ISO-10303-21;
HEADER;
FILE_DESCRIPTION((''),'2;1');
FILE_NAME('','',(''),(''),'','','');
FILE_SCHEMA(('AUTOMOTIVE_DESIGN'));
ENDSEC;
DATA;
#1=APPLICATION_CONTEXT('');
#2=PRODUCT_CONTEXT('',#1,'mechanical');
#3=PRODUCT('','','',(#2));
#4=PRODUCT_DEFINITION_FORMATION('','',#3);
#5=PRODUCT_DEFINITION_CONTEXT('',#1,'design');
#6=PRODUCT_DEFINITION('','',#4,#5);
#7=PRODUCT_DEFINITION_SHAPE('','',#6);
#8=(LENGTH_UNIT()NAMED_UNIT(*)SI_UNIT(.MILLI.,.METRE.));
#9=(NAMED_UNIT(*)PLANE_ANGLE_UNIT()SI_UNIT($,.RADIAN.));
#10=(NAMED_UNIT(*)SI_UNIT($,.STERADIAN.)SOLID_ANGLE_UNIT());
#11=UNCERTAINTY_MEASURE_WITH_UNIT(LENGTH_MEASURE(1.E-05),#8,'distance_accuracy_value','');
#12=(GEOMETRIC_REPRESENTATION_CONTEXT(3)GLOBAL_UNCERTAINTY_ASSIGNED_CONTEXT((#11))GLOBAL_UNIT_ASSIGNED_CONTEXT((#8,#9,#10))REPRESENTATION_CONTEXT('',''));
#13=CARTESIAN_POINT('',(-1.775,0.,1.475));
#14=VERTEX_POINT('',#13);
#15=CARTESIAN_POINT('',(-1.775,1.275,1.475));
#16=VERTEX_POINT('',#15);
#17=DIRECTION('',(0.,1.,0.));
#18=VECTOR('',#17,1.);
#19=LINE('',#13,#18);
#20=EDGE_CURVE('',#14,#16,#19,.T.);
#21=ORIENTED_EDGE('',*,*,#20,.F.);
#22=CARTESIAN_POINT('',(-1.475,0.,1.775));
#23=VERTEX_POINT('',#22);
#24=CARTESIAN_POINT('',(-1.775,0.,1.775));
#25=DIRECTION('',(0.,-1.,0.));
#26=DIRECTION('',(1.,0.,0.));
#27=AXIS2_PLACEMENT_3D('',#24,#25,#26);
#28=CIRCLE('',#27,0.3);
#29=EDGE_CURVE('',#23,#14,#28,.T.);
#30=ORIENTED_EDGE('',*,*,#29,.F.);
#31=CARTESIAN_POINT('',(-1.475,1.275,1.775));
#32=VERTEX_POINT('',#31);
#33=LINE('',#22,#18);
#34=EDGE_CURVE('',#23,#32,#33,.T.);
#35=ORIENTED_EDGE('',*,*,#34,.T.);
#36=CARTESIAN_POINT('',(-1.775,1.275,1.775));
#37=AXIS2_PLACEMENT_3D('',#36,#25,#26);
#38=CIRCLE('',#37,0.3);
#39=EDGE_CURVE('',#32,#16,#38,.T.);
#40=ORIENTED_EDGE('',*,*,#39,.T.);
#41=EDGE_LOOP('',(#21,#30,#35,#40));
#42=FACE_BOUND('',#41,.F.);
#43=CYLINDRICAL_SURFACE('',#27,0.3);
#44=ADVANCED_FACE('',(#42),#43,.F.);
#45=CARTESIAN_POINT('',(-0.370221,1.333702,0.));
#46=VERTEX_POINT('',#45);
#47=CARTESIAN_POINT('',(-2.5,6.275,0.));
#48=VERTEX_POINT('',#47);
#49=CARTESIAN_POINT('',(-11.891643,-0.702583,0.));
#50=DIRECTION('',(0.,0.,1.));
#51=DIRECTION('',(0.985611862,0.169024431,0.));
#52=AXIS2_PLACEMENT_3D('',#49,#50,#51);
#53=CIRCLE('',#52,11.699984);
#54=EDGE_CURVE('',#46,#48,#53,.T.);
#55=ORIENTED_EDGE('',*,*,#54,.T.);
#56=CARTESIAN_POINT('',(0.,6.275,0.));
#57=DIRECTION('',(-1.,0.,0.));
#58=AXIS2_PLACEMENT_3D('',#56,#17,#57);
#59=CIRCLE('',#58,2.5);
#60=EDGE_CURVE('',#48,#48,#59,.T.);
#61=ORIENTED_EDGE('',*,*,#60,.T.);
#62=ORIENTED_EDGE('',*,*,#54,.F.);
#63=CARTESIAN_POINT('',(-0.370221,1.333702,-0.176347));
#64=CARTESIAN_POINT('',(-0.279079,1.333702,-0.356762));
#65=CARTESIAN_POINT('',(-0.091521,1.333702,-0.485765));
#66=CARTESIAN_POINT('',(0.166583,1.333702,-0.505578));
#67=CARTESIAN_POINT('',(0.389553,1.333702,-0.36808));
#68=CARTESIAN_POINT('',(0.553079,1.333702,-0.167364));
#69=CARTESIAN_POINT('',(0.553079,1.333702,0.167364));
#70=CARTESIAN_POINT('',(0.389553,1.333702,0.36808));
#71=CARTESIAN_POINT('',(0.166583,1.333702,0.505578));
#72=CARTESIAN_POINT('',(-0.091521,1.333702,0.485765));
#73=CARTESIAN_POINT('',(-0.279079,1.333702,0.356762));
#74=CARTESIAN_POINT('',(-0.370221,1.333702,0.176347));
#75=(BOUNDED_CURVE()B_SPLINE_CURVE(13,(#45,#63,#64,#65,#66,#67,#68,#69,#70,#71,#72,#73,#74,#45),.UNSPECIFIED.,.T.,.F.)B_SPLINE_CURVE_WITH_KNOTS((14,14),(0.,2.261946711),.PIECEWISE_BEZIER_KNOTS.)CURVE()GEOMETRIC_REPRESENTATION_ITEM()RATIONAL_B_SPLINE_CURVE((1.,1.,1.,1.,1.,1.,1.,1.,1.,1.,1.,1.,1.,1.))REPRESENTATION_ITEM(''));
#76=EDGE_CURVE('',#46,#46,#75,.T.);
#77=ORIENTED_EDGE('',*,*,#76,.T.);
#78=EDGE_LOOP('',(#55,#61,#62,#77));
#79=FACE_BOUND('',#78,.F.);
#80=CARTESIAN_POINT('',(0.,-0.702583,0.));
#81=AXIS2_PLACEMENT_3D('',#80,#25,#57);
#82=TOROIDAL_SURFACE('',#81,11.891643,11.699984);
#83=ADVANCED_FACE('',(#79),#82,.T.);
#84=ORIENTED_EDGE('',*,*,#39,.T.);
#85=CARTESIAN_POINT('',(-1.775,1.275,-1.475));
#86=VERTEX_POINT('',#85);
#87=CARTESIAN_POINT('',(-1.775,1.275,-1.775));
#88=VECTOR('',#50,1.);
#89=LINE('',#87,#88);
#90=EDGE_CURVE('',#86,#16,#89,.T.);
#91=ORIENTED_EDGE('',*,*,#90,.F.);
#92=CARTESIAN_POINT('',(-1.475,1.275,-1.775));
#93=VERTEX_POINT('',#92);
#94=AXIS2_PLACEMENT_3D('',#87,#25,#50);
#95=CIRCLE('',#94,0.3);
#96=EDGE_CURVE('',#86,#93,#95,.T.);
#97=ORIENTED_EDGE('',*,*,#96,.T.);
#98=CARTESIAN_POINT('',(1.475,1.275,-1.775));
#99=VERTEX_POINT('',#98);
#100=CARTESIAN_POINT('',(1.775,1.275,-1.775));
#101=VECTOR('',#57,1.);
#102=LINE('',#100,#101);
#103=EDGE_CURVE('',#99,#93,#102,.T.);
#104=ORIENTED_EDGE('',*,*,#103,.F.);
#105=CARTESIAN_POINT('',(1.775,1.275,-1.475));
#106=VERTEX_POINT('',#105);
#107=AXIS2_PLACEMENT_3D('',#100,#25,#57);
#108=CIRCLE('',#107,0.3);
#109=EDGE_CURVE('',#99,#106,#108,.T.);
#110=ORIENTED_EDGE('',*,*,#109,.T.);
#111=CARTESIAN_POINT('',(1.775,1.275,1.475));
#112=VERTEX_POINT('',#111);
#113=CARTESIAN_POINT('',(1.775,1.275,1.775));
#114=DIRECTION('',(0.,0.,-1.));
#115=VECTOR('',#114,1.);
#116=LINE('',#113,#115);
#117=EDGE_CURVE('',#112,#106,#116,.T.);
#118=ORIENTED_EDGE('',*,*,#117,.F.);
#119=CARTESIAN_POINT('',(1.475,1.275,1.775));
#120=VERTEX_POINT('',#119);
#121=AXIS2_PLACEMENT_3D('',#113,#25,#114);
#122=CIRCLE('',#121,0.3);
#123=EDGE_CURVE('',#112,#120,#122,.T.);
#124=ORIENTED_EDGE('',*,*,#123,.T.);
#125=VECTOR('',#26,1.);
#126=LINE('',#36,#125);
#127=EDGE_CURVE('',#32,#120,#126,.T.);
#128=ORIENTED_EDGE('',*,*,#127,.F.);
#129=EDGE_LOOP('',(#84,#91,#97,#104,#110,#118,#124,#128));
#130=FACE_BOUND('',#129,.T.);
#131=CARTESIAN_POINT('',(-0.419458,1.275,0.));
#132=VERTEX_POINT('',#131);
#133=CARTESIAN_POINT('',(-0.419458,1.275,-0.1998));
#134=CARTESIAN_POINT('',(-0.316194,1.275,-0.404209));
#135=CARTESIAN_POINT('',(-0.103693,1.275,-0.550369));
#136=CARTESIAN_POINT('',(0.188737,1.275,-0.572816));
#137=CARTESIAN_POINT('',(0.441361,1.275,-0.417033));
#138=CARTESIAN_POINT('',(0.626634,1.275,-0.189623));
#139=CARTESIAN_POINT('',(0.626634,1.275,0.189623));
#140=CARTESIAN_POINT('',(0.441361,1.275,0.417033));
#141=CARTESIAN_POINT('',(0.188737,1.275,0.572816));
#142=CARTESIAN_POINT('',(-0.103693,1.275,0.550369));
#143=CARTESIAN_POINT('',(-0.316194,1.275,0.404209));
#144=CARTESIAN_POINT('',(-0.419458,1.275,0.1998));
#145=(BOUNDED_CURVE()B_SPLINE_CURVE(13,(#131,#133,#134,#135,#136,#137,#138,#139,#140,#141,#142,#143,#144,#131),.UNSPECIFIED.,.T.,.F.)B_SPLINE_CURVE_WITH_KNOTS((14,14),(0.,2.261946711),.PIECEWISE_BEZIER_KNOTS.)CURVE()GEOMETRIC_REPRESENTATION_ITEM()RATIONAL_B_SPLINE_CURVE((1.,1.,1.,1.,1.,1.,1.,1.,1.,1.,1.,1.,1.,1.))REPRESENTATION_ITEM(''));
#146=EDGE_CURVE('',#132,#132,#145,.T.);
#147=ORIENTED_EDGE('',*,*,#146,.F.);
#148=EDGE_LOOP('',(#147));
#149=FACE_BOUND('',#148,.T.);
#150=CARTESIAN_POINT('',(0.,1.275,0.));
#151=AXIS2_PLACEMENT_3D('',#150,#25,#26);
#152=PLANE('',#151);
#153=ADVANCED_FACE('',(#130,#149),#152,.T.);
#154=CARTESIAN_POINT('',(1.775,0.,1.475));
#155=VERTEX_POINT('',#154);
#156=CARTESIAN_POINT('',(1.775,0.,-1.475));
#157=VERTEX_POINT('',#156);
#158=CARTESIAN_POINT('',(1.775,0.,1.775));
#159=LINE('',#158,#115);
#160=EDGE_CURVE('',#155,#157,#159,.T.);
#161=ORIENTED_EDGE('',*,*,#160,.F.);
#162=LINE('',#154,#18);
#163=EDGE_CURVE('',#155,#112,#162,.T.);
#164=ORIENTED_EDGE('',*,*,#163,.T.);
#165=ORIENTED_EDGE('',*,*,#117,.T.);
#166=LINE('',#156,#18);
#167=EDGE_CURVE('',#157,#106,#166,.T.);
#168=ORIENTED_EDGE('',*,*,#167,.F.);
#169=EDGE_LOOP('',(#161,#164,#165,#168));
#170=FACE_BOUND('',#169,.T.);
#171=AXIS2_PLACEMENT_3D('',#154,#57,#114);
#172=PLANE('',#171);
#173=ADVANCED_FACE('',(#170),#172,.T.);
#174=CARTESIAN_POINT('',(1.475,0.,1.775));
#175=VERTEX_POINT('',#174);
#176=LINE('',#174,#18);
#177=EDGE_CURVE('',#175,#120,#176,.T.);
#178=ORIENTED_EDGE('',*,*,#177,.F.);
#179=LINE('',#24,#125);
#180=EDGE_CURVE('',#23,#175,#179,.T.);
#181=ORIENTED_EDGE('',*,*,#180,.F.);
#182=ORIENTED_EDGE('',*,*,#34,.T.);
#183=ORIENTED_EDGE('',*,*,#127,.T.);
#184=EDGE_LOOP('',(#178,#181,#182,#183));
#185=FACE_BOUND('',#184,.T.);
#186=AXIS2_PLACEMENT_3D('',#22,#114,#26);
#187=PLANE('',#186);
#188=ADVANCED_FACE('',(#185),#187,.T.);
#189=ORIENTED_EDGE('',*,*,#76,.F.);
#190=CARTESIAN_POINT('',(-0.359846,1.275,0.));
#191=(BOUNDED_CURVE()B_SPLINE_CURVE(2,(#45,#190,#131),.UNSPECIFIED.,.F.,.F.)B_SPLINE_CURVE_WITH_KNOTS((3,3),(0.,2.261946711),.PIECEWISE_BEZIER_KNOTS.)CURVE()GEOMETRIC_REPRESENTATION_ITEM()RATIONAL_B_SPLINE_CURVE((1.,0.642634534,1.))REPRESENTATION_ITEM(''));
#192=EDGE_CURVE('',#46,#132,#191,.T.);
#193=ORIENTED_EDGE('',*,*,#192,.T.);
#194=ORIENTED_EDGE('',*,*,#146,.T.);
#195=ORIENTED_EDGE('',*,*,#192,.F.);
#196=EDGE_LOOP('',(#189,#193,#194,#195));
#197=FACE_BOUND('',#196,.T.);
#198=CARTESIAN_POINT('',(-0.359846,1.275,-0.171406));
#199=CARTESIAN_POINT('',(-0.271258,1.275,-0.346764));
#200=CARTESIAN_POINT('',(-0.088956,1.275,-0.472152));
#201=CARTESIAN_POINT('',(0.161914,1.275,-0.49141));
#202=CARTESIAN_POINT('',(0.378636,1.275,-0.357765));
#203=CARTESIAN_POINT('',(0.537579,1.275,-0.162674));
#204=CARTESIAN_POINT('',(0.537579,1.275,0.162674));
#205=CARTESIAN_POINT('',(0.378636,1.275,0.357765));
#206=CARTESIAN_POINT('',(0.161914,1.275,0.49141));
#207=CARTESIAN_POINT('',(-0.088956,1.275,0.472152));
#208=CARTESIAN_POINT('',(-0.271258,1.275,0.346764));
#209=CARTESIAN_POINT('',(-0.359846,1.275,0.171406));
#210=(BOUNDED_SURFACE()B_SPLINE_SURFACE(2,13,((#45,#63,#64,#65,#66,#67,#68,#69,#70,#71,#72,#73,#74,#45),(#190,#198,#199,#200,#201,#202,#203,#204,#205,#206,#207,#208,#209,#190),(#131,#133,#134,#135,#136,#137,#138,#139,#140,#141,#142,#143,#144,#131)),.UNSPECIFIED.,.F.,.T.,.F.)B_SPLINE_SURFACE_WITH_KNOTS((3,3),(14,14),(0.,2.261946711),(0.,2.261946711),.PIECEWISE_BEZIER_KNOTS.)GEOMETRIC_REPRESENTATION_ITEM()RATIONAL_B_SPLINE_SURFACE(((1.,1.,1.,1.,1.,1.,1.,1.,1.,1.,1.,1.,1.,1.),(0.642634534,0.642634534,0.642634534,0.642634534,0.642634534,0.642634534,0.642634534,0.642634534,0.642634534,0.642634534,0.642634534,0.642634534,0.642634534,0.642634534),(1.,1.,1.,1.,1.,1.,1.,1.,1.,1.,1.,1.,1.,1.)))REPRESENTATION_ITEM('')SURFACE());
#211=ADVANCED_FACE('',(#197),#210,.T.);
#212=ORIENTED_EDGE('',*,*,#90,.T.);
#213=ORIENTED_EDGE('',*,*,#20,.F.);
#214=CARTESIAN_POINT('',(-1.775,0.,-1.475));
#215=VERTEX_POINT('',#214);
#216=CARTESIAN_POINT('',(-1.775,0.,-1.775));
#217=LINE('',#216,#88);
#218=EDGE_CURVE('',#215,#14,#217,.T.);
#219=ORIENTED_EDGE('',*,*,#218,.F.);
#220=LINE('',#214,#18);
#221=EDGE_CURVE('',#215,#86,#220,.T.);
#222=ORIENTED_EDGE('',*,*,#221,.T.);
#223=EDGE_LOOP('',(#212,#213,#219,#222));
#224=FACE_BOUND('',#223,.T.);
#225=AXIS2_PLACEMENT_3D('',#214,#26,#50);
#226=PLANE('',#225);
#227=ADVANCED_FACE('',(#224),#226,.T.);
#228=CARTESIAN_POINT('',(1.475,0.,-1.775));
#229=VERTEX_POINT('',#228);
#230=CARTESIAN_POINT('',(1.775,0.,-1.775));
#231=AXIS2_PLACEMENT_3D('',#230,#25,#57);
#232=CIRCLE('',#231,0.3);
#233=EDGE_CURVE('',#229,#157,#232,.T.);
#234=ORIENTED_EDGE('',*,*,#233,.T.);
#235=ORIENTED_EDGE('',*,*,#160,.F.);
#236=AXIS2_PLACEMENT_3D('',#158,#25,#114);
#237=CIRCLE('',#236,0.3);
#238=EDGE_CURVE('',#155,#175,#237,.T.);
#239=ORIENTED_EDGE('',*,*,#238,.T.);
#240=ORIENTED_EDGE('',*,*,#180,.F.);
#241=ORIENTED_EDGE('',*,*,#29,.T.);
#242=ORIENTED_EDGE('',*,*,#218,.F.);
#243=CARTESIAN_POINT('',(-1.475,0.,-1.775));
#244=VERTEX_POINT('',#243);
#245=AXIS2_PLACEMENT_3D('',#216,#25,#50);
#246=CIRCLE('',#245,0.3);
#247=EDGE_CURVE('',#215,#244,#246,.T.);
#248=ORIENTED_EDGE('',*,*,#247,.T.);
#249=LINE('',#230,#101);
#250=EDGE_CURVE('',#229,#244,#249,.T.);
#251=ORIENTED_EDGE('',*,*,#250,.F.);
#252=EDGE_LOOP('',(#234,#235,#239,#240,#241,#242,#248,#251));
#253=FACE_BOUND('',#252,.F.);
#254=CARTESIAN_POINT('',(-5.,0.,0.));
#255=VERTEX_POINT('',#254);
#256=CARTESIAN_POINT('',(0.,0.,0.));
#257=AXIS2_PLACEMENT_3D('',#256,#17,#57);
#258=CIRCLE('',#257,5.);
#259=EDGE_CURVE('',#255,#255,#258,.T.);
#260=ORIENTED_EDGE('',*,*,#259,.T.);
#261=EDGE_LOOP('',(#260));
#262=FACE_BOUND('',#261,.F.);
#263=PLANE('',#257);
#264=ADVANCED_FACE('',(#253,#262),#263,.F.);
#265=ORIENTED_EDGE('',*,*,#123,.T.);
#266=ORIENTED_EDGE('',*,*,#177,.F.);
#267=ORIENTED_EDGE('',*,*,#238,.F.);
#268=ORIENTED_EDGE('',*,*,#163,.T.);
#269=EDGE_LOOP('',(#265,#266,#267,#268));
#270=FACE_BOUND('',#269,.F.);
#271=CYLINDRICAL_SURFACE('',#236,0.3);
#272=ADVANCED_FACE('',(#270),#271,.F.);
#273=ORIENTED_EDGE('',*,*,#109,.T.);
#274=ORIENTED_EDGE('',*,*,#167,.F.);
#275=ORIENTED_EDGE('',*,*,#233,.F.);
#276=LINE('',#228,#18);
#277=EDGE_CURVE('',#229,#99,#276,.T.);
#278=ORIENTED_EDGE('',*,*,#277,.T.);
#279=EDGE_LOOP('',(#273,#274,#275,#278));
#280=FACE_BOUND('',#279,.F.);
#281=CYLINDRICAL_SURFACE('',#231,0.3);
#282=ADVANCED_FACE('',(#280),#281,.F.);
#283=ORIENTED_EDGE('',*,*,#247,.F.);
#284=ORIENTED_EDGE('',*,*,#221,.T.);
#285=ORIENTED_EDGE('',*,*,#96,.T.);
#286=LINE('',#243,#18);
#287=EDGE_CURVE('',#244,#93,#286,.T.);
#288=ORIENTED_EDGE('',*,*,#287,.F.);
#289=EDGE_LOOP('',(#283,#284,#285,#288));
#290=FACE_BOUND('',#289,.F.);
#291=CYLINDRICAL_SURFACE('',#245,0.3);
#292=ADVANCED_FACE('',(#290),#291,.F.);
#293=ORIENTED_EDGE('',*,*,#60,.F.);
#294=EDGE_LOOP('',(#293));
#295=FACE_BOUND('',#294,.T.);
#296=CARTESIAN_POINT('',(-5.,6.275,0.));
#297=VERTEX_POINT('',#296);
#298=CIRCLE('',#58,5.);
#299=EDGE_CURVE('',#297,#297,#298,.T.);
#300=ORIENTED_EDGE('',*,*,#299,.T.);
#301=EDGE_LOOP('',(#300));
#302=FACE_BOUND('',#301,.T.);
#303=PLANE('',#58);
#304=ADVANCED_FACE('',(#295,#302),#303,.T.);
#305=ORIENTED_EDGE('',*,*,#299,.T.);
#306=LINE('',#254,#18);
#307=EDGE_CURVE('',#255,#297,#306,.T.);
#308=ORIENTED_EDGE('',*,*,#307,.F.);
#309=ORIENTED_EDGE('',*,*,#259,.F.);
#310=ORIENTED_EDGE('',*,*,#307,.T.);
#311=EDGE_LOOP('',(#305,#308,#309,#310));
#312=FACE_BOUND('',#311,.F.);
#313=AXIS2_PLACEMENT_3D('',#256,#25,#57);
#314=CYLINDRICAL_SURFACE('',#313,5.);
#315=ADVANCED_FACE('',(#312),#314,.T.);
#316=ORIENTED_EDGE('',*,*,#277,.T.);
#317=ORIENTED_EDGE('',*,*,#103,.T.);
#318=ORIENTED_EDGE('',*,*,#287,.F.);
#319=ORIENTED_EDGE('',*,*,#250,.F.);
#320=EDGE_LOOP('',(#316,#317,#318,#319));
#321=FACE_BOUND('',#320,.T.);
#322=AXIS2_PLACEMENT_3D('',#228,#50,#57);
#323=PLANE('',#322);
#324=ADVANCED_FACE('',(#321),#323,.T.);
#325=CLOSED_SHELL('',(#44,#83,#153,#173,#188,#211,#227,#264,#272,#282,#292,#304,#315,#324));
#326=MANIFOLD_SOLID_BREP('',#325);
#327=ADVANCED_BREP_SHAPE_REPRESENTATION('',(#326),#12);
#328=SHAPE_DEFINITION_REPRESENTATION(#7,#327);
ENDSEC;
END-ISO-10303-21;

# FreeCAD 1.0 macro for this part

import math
import FreeCAD as App
import Part
import Sketcher
from FreeCAD import Vector
Q = App.Units.Quantity


def edges_at(feature, points):
    """Names of the edges that pass closest to the given points."""
    edges = feature.Shape.Edges
    near = lambda p: min(range(len(edges)), key=lambda i: edges[i].distToShape(Part.Vertex(*p))[0])
    return sorted({f"Edge{near(p) + 1}" for p in points})

doc = App.newDocument("Part")
body = doc.addObject("PartDesign::Body", "Body")

# Sketch on XZ plane
sketch1 = body.newObject("Sketcher::SketchObject", "Sketch")
sketch1.AttachmentSupport = (doc.getObject("XZ_Plane"), [""])
sketch1.MapMode = "FlatFace"
sketch1.addGeometry([
    Part.Circle(Vector(0, 0, 0), Vector(0, 0, 1), 5),
    Part.Circle(Vector(0, 0, 0), Vector(0, 0, 1), 0.36),
], False)
sketch1.addConstraint([
    Sketcher.Constraint("Coincident", 0, 3, -1, 1),
    Sketcher.Constraint("Coincident", 1, 3, -1, 1),
    Sketcher.Constraint("Diameter", 0, Q("10 mm")),
    Sketcher.Constraint("Diameter", 1, Q("0.72 mm")),
])
pad1 = body.newObject("PartDesign::Pad", "Pad")
pad1.Profile = sketch1
pad1.Length = 6.275
pad1.Reversed = True

# Sketch on XZ plane
sketch2 = body.newObject("Sketcher::SketchObject", "Sketch001")
sketch2.AttachmentSupport = (doc.getObject("XZ_Plane"), [""])
sketch2.MapMode = "FlatFace"
sketch2.addGeometry([
    Part.ArcOfCircle(Part.Circle(Vector(-1.77, 1.77, 0), Vector(0, 0, 1), 0.3), math.radians(0), math.radians(270)),  # 0
    Part.LineSegment(Vector(-1.77, 1.48, 0), Vector(-1.77, -1.48, 0)),  # 1
    Part.ArcOfCircle(Part.Circle(Vector(-1.77, -1.77, 0), Vector(0, 0, 1), 0.3), math.radians(90), math.radians(360)),  # 2
    Part.LineSegment(Vector(-1.48, -1.77, 0), Vector(1.48, -1.77, 0)),  # 3
    Part.ArcOfCircle(Part.Circle(Vector(1.77, -1.77, 0), Vector(0, 0, 1), 0.3), math.radians(180), math.radians(450)),  # 4
    Part.LineSegment(Vector(1.77, -1.48, 0), Vector(1.77, 1.48, 0)),  # 5
    Part.ArcOfCircle(Part.Circle(Vector(1.77, 1.77, 0), Vector(0, 0, 1), 0.3), math.radians(-90), math.radians(180)),  # 6
    Part.LineSegment(Vector(1.48, 1.77, 0), Vector(-1.48, 1.77, 0)),  # 7
], False)
sketch2.addConstraint([
    Sketcher.Constraint("Coincident", 0, 2, 1, 1),
    Sketcher.Constraint("Coincident", 1, 2, 2, 1),
    Sketcher.Constraint("Coincident", 2, 2, 3, 1),
    Sketcher.Constraint("Coincident", 3, 2, 4, 1),
    Sketcher.Constraint("Coincident", 4, 2, 5, 1),
    Sketcher.Constraint("Coincident", 5, 2, 6, 1),
    Sketcher.Constraint("Coincident", 6, 2, 7, 1),
    Sketcher.Constraint("Coincident", 7, 2, 0, 1),
    Sketcher.Constraint("Vertical", 1),
    Sketcher.Constraint("Horizontal", 3),
    Sketcher.Constraint("Vertical", 5),
    Sketcher.Constraint("Horizontal", 7),
    Sketcher.Constraint("Equal", 0, 2),
    Sketcher.Constraint("Equal", 2, 4),
    Sketcher.Constraint("Equal", 4, 6),
    Sketcher.Constraint("Symmetric", 0, 3, 4, 3, -1, 1),
    Sketcher.Constraint("Symmetric", 2, 3, 6, 3, -1, 1),
    Sketcher.Constraint("Symmetric", 2, 3, 4, 3, -2),
    Sketcher.Constraint("Horizontal", 4, 3, 2, 2),
    Sketcher.Constraint("Horizontal", 0, 3, 6, 2),
    Sketcher.Constraint("Vertical", 2, 3, 0, 2),
    Sketcher.Constraint("Vertical", 6, 3, 4, 2),
    Sketcher.Constraint("Equal", 7, 1),
    Sketcher.Constraint("Radius", 0, Q("0.3 mm")),
    Sketcher.Constraint("DistanceY", 2, 3, 0, 3, Q("3.55 mm")),
])
pocket1 = body.newObject("PartDesign::Pocket", "Pocket")
pocket1.Profile = sketch2
pocket1.Length = 1.275

# Sketch on XY plane
sketch3 = body.newObject("Sketcher::SketchObject", "Sketch002")
sketch3.AttachmentSupport = (doc.getObject("XY_Plane"), [""])
sketch3.MapMode = "FlatFace"
sketch3.addGeometry([
    Part.ArcOfCircle(Part.Circle(Vector(-11.89, -0.7, 0), Vector(0, 0, 1), 11.7), math.radians(10), math.radians(37)),
    Part.LineSegment(Vector(-0.36, 1.27, 0), Vector(0, 1.27, 0)),
    Part.LineSegment(Vector(0, 1.27, 0), Vector(0, 6.28, 0)),
    Part.LineSegment(Vector(0, 6.28, 0), Vector(-2.5, 6.28, 0)),
], False)
sketch3.addConstraint([
    Sketcher.Constraint("Coincident", 0, 1, 1, 1),
    Sketcher.Constraint("Coincident", 1, 2, 2, 1),
    Sketcher.Constraint("Coincident", 2, 2, 3, 1),
    Sketcher.Constraint("Coincident", 3, 2, 0, 2),
    Sketcher.Constraint("Horizontal", 1),
    Sketcher.Constraint("Vertical", 2),
    Sketcher.Constraint("Horizontal", 3),
    Sketcher.Constraint("PointOnObject", 1, 2, -2),
    Sketcher.Constraint("Radius", 0, Q("11.7 mm")),
    Sketcher.Constraint("DistanceX", 3, 2, 3, 1, Q("2.5 mm")),
    Sketcher.Constraint("DistanceY", 2, 1, 2, 2, Q("5 mm")),
    Sketcher.Constraint("DistanceX", 1, 1, 1, 2, Q("0.36 mm")),
    Sketcher.Constraint("DistanceY", -1, 1, 0, 1, Q("1.275 mm")),
])
groove = body.newObject("PartDesign::Groove", "Groove")
groove.Profile = sketch3
groove.ReferenceAxis = (sketch3, ["V_Axis"])
groove.Angle = 360
doc.recompute()

fillet = body.newObject("PartDesign::Fillet", "Fillet")
fillet.Base = (groove, edges_at(groove, [(0.36, 1.275, 0)]))
fillet.Radius = 0.05

doc.recompute()
